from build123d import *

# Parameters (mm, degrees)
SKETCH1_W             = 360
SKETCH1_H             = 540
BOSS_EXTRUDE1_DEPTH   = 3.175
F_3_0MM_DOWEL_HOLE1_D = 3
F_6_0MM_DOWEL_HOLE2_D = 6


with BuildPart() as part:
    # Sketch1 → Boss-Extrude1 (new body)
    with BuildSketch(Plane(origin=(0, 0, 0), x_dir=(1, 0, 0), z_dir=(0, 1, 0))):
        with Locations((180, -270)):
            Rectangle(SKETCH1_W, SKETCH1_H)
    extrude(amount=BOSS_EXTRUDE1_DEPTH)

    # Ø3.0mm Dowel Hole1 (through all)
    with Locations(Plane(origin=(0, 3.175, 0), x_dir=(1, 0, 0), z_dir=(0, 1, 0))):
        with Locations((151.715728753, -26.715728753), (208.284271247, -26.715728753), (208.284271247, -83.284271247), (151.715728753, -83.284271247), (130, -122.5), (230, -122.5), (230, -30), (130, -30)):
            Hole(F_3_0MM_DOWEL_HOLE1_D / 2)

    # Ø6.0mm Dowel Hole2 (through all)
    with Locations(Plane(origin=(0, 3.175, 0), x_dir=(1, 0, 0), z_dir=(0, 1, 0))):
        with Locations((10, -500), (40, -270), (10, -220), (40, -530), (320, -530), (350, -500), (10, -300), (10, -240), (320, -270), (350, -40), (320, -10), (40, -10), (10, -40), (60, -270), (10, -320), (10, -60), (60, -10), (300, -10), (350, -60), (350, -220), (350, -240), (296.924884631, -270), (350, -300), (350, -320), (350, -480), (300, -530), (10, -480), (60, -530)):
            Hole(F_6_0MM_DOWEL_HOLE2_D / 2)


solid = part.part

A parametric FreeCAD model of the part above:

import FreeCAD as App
import Part
import Sketcher
from FreeCAD import Vector

doc = App.newDocument("Part")
body = doc.addObject("PartDesign::Body", "Body")

# Sketch on XZ plane
sketch1 = doc.addObject("Sketcher::SketchObject", "Sketch")
body.addObject(sketch1)
sketch1.AttachmentSupport = (doc.XZ_Plane, [""])
sketch1.MapMode = "FlatFace"
sketch1.addGeometry(Part.LineSegment(Vector(0, 0, 0), Vector(0, 540, 0)), False)
sketch1.addGeometry(Part.LineSegment(Vector(0, 540, 0), Vector(360, 540, 0)), False)
sketch1.addGeometry(Part.LineSegment(Vector(360, 540, 0), Vector(360, 0, 0)), False)
sketch1.addGeometry(Part.LineSegment(Vector(360, 0, 0), Vector(0, 0, 0)), False)
sketch1.addConstraint(Sketcher.Constraint("Coincident", 0, 2, 1, 1))
sketch1.addConstraint(Sketcher.Constraint("Coincident", 1, 2, 2, 1))
sketch1.addConstraint(Sketcher.Constraint("Coincident", 2, 2, 3, 1))
sketch1.addConstraint(Sketcher.Constraint("Coincident", 3, 2, 0, 1))
sketch1.addConstraint(Sketcher.Constraint("Vertical", 0))
sketch1.addConstraint(Sketcher.Constraint("Horizontal", 1))
sketch1.addConstraint(Sketcher.Constraint("Vertical", 2))
sketch1.addConstraint(Sketcher.Constraint("Horizontal", 3))
sketch1.addConstraint(Sketcher.Constraint("Coincident", 3, 2, -1, 1))
sketch1.addConstraint(Sketcher.Constraint("DistanceX", 1, 1, 1, 2, 360.0))
sketch1.addConstraint(Sketcher.Constraint("DistanceY", 0, 1, 0, 2, 540.0))
pad1 = doc.addObject("PartDesign::Pad", "Pad")
body.addObject(pad1)
pad1.Profile = sketch1
pad1.Length = 3.175
pad1.Reversed = True

# Sketch on XZ plane
sketch2 = doc.addObject("Sketcher::SketchObject", "Sketch001")
body.addObject(sketch2)
sketch2.AttachmentSupport = (doc.XZ_Plane, [""])
sketch2.MapMode = "FlatFace"
sketch2.AttachmentOffset = App.Placement(Vector(0, 0, -3.175), App.Rotation())
sketch2.addGeometry(Part.Circle(Vector(151.715729, 26.715729, 0), Vector(0, 0, 1), 1.5), False)
sketch2.addGeometry(Part.Circle(Vector(208.284271, 26.715729, 0), Vector(0, 0, 1), 1.5), False)
sketch2.addGeometry(Part.Circle(Vector(208.284271, 83.284271, 0), Vector(0, 0, 1), 1.5), False)
sketch2.addGeometry(Part.Circle(Vector(151.715729, 83.284271, 0), Vector(0, 0, 1), 1.5), False)
sketch2.addGeometry(Part.Circle(Vector(130, 122.5, 0), Vector(0, 0, 1), 1.5), False)
sketch2.addGeometry(Part.Circle(Vector(230, 122.5, 0), Vector(0, 0, 1), 1.5), False)
sketch2.addGeometry(Part.Circle(Vector(230, 30, 0), Vector(0, 0, 1), 1.5), False)
sketch2.addGeometry(Part.Circle(Vector(130, 30, 0), Vector(0, 0, 1), 1.5), False)
sketch2.addConstraint(Sketcher.Constraint("Equal", 0, 1))
sketch2.addConstraint(Sketcher.Constraint("Equal", 1, 2))
sketch2.addConstraint(Sketcher.Constraint("Equal", 2, 3))
sketch2.addConstraint(Sketcher.Constraint("Equal", 3, 4))
sketch2.addConstraint(Sketcher.Constraint("Equal", 4, 5))
sketch2.addConstraint(Sketcher.Constraint("Equal", 5, 6))
sketch2.addConstraint(Sketcher.Constraint("Equal", 6, 7))
sketch2.addConstraint(Sketcher.Constraint("Horizontal", 0, 3, 1, 3))
sketch2.addConstraint(Sketcher.Constraint("Horizontal", 2, 3, 3, 3))
sketch2.addConstraint(Sketcher.Constraint("Horizontal", 4, 3, 5, 3))
sketch2.addConstraint(Sketcher.Constraint("Horizontal", 6, 3, 7, 3))
sketch2.addConstraint(Sketcher.Constraint("Vertical", 1, 3, 2, 3))
sketch2.addConstraint(Sketcher.Constraint("Vertical", 0, 3, 3, 3))
sketch2.addConstraint(Sketcher.Constraint("Vertical", 5, 3, 6, 3))
sketch2.addConstraint(Sketcher.Constraint("Vertical", 4, 3, 7, 3))
sketch2.addConstraint(Sketcher.Constraint("Diameter", 0, 3.0))
sketch2.addConstraint(Sketcher.Constraint("DistanceX", -1, 1, 4, 3, 130.0))
sketch2.addConstraint(Sketcher.Constraint("DistanceX", -1, 1, 5, 3, 230.0))
sketch2.addConstraint(Sketcher.Constraint("DistanceY", -1, 1, 6, 3, 30.0))
sketch2.addConstraint(Sketcher.Constraint("DistanceY", -1, 1, 4, 3, 122.5))
sketch2.addConstraint(Sketcher.Constraint("DistanceX", -1, 1, 0, 3, 151.715729))
sketch2.addConstraint(Sketcher.Constraint("DistanceY", -1, 1, 0, 3, 26.715729))
sketch2.addConstraint(Sketcher.Constraint("DistanceX", -1, 1, 1, 3, 208.284271))
sketch2.addConstraint(Sketcher.Constraint("DistanceY", -1, 1, 2, 3, 83.284271))
doc.recompute()
hole = doc.addObject("PartDesign::Hole", "Hole")
body.addObject(hole)
hole.Profile = sketch2
hole.ThreadType = "None"
hole.Diameter = 3
hole.DepthType = "ThroughAll"
hole.Reversed = True

# Sketch on XZ plane
sketch3 = doc.addObject("Sketcher::SketchObject", "Sketch002")
body.addObject(sketch3)
sketch3.AttachmentSupport = (doc.XZ_Plane, [""])
sketch3.MapMode = "FlatFace"
sketch3.AttachmentOffset = App.Placement(Vector(0, 0, -3.175), App.Rotation())
sketch3.addGeometry(Part.Circle(Vector(10, 500, 0), Vector(0, 0, 1), 3), False)
sketch3.addGeometry(Part.Circle(Vector(40, 270, 0), Vector(0, 0, 1), 3), False)
sketch3.addGeometry(Part.Circle(Vector(10, 220, 0), Vector(0, 0, 1), 3), False)
sketch3.addGeometry(Part.Circle(Vector(40, 530, 0), Vector(0, 0, 1), 3), False)
sketch3.addGeometry(Part.Circle(Vector(320, 530, 0), Vector(0, 0, 1), 3), False)
sketch3.addGeometry(Part.Circle(Vector(350, 500, 0), Vector(0, 0, 1), 3), False)
sketch3.addGeometry(Part.Circle(Vector(10, 300, 0), Vector(0, 0, 1), 3), False)
sketch3.addGeometry(Part.Circle(Vector(10, 240, 0), Vector(0, 0, 1), 3), False)
sketch3.addGeometry(Part.Circle(Vector(320, 270, 0), Vector(0, 0, 1), 3), False)
sketch3.addGeometry(Part.Circle(Vector(350, 40, 0), Vector(0, 0, 1), 3), False)
sketch3.addGeometry(Part.Circle(Vector(320, 10, 0), Vector(0, 0, 1), 3), False)
sketch3.addGeometry(Part.Circle(Vector(40, 10, 0), Vector(0, 0, 1), 3), False)
sketch3.addGeometry(Part.Circle(Vector(10, 40, 0), Vector(0, 0, 1), 3), False)
sketch3.addGeometry(Part.Circle(Vector(60, 270, 0), Vector(0, 0, 1), 3), False)
sketch3.addGeometry(Part.Circle(Vector(10, 320, 0), Vector(0, 0, 1), 3), False)
sketch3.addGeometry(Part.Circle(Vector(10, 60, 0), Vector(0, 0, 1), 3), False)
sketch3.addGeometry(Part.Circle(Vector(60, 10, 0), Vector(0, 0, 1), 3), False)
sketch3.addGeometry(Part.Circle(Vector(300, 10, 0), Vector(0, 0, 1), 3), False)
sketch3.addGeometry(Part.Circle(Vector(350, 60, 0), Vector(0, 0, 1), 3), False)
sketch3.addGeometry(Part.Circle(Vector(350, 220, 0), Vector(0, 0, 1), 3), False)
sketch3.addGeometry(Part.Circle(Vector(350, 240, 0), Vector(0, 0, 1), 3), False)
sketch3.addGeometry(Part.Circle(Vector(296.924885, 270, 0), Vector(0, 0, 1), 3), False)
sketch3.addGeometry(Part.Circle(Vector(350, 300, 0), Vector(0, 0, 1), 3), False)
sketch3.addGeometry(Part.Circle(Vector(350, 320, 0), Vector(0, 0, 1), 3), False)
sketch3.addGeometry(Part.Circle(Vector(350, 480, 0), Vector(0, 0, 1), 3), False)
sketch3.addGeometry(Part.Circle(Vector(300, 530, 0), Vector(0, 0, 1), 3), False)
sketch3.addGeometry(Part.Circle(Vector(10, 480, 0), Vector(0, 0, 1), 3), False)
sketch3.addGeometry(Part.Circle(Vector(60, 530, 0), Vector(0, 0, 1), 3), False)
sketch3.addConstraint(Sketcher.Constraint("Equal", 0, 1))
sketch3.addConstraint(Sketcher.Constraint("Equal", 1, 2))
sketch3.addConstraint(Sketcher.Constraint("Equal", 2, 3))
sketch3.addConstraint(Sketcher.Constraint("Equal", 3, 4))
sketch3.addConstraint(Sketcher.Constraint("Equal", 4, 5))
sketch3.addConstraint(Sketcher.Constraint("Equal", 5, 6))
sketch3.addConstraint(Sketcher.Constraint("Equal", 6, 7))
sketch3.addConstraint(Sketcher.Constraint("Equal", 7, 8))
sketch3.addConstraint(Sketcher.Constraint("Equal", 8, 9))
sketch3.addConstraint(Sketcher.Constraint("Equal", 9, 10))
sketch3.addConstraint(Sketcher.Constraint("Equal", 10, 11))
sketch3.addConstraint(Sketcher.Constraint("Equal", 11, 12))
sketch3.addConstraint(Sketcher.Constraint("Equal", 12, 13))
sketch3.addConstraint(Sketcher.Constraint("Equal", 13, 14))
sketch3.addConstraint(Sketcher.Constraint("Equal", 14, 15))
sketch3.addConstraint(Sketcher.Constraint("Equal", 15, 16))
sketch3.addConstraint(Sketcher.Constraint("Equal", 16, 17))
sketch3.addConstraint(Sketcher.Constraint("Equal", 17, 18))
sketch3.addConstraint(Sketcher.Constraint("Equal", 18, 19))
sketch3.addConstraint(Sketcher.Constraint("Equal", 19, 20))
sketch3.addConstraint(Sketcher.Constraint("Equal", 20, 21))
sketch3.addConstraint(Sketcher.Constraint("Equal", 21, 22))
sketch3.addConstraint(Sketcher.Constraint("Equal", 22, 23))
sketch3.addConstraint(Sketcher.Constraint("Equal", 23, 24))
sketch3.addConstraint(Sketcher.Constraint("Equal", 24, 25))
sketch3.addConstraint(Sketcher.Constraint("Equal", 25, 26))
sketch3.addConstraint(Sketcher.Constraint("Equal", 26, 27))
sketch3.addConstraint(Sketcher.Constraint("Horizontal", 3, 3, 4, 3))
sketch3.addConstraint(Sketcher.Constraint("Horizontal", 0, 3, 5, 3))
sketch3.addConstraint(Sketcher.Constraint("Horizontal", 1, 3, 8, 3))
sketch3.addConstraint(Sketcher.Constraint("Horizontal", 10, 3, 11, 3))
sketch3.addConstraint(Sketcher.Constraint("Horizontal", 9, 3, 12, 3))
sketch3.addConstraint(Sketcher.Constraint("Horizontal", 8, 3, 13, 3))
sketch3.addConstraint(Sketcher.Constraint("Horizontal", 11, 3, 16, 3))
sketch3.addConstraint(Sketcher.Constraint("Horizontal", 16, 3, 17, 3))
sketch3.addConstraint(Sketcher.Constraint("Horizontal", 15, 3, 18, 3))
sketch3.addConstraint(Sketcher.Constraint("Horizontal", 2, 3, 19, 3))
sketch3.addConstraint(Sketcher.Constraint("Horizontal", 7, 3, 20, 3))
sketch3.addConstraint(Sketcher.Constraint("Horizontal", 13, 3, 21, 3))
sketch3.addConstraint(Sketcher.Constraint("Horizontal", 6, 3, 22, 3))
sketch3.addConstraint(Sketcher.Constraint("Horizontal", 14, 3, 23, 3))
sketch3.addConstraint(Sketcher.Constraint("Horizontal", 4, 3, 25, 3))
sketch3.addConstraint(Sketcher.Constraint("Horizontal", 24, 3, 26, 3))
sketch3.addConstraint(Sketcher.Constraint("Horizontal", 25, 3, 27, 3))
sketch3.addConstraint(Sketcher.Constraint("Vertical", 0, 3, 2, 3))
sketch3.addConstraint(Sketcher.Constraint("Vertical", 1, 3, 3, 3))
sketch3.addConstraint(Sketcher.Constraint("Vertical", 2, 3, 6, 3))
sketch3.addConstraint(Sketcher.Constraint("Vertical", 6, 3, 7, 3))
sketch3.addConstraint(Sketcher.Constraint("Vertical", 4, 3, 8, 3))
sketch3.addConstraint(Sketcher.Constraint("Vertical", 5, 3, 9, 3))
sketch3.addConstraint(Sketcher.Constraint("Vertical", 8, 3, 10, 3))
sketch3.addConstraint(Sketcher.Constraint("Vertical", 3, 3, 11, 3))
sketch3.addConstraint(Sketcher.Constraint("Vertical", 7, 3, 12, 3))
sketch3.addConstraint(Sketcher.Constraint("Vertical", 12, 3, 14, 3))
sketch3.addConstraint(Sketcher.Constraint("Vertical", 14, 3, 15, 3))
sketch3.addConstraint(Sketcher.Constraint("Vertical", 13, 3, 16, 3))
sketch3.addConstraint(Sketcher.Constraint("Vertical", 9, 3, 18, 3))
sketch3.addConstraint(Sketcher.Constraint("Vertical", 18, 3, 19, 3))
sketch3.addConstraint(Sketcher.Constraint("Vertical", 19, 3, 20, 3))
sketch3.addConstraint(Sketcher.Constraint("Vertical", 20, 3, 22, 3))
sketch3.addConstraint(Sketcher.Constraint("Vertical", 22, 3, 23, 3))
sketch3.addConstraint(Sketcher.Constraint("Vertical", 23, 3, 24, 3))
sketch3.addConstraint(Sketcher.Constraint("Vertical", 17, 3, 25, 3))
sketch3.addConstraint(Sketcher.Constraint("Vertical", 15, 3, 26, 3))
sketch3.addConstraint(Sketcher.Constraint("Vertical", 16, 3, 27, 3))
sketch3.addConstraint(Sketcher.Constraint("Diameter", 0, 6.0))
sketch3.addConstraint(Sketcher.Constraint("DistanceX", -1, 1, 0, 3, 10.0))
sketch3.addConstraint(Sketcher.Constraint("DistanceY", -1, 1, 0, 3, 500.0))
sketch3.addConstraint(Sketcher.Constraint("DistanceX", -1, 1, 1, 3, 40.0))
sketch3.addConstraint(Sketcher.Constraint("DistanceY", -1, 1, 1, 3, 270.0))
sketch3.addConstraint(Sketcher.Constraint("DistanceY", -1, 1, 2, 3, 220.0))
sketch3.addConstraint(Sketcher.Constraint("DistanceY", -1, 1, 3, 3, 530.0))
sketch3.addConstraint(Sketcher.Constraint("DistanceX", -1, 1, 4, 3, 320.0))
sketch3.addConstraint(Sketcher.Constraint("DistanceX", -1, 1, 5, 3, 350.0))
sketch3.addConstraint(Sketcher.Constraint("DistanceY", -1, 1, 6, 3, 300.0))
sketch3.addConstraint(Sketcher.Constraint("DistanceY", -1, 1, 7, 3, 240.0))
sketch3.addConstraint(Sketcher.Constraint("DistanceY", -1, 1, 9, 3, 40.0))
sketch3.addConstraint(Sketcher.Constraint("DistanceY", -1, 1, 10, 3, 10.0))
sketch3.addConstraint(Sketcher.Constraint("DistanceX", -1, 1, 13, 3, 60.0))
sketch3.addConstraint(Sketcher.Constraint("DistanceY", -1, 1, 14, 3, 320.0))
sketch3.addConstraint(Sketcher.Constraint("DistanceY", -1, 1, 15, 3, 60.0))
sketch3.addConstraint(Sketcher.Constraint("DistanceX", -1, 1, 17, 3, 300.0))
sketch3.addConstraint(Sketcher.Constraint("DistanceY", -1, 1, 24, 3, 480.0))
sketch3.addConstraint(Sketcher.Constraint("DistanceX", -1, 1, 21, 3, 296.924885))
doc.recompute()
hole2 = doc.addObject("PartDesign::Hole", "Hole001")
body.addObject(hole2)
hole2.Profile = sketch3
hole2.ThreadType = "None"
hole2.Diameter = 6
hole2.DepthType = "ThroughAll"
hole2.Reversed = True

doc.recompute()
